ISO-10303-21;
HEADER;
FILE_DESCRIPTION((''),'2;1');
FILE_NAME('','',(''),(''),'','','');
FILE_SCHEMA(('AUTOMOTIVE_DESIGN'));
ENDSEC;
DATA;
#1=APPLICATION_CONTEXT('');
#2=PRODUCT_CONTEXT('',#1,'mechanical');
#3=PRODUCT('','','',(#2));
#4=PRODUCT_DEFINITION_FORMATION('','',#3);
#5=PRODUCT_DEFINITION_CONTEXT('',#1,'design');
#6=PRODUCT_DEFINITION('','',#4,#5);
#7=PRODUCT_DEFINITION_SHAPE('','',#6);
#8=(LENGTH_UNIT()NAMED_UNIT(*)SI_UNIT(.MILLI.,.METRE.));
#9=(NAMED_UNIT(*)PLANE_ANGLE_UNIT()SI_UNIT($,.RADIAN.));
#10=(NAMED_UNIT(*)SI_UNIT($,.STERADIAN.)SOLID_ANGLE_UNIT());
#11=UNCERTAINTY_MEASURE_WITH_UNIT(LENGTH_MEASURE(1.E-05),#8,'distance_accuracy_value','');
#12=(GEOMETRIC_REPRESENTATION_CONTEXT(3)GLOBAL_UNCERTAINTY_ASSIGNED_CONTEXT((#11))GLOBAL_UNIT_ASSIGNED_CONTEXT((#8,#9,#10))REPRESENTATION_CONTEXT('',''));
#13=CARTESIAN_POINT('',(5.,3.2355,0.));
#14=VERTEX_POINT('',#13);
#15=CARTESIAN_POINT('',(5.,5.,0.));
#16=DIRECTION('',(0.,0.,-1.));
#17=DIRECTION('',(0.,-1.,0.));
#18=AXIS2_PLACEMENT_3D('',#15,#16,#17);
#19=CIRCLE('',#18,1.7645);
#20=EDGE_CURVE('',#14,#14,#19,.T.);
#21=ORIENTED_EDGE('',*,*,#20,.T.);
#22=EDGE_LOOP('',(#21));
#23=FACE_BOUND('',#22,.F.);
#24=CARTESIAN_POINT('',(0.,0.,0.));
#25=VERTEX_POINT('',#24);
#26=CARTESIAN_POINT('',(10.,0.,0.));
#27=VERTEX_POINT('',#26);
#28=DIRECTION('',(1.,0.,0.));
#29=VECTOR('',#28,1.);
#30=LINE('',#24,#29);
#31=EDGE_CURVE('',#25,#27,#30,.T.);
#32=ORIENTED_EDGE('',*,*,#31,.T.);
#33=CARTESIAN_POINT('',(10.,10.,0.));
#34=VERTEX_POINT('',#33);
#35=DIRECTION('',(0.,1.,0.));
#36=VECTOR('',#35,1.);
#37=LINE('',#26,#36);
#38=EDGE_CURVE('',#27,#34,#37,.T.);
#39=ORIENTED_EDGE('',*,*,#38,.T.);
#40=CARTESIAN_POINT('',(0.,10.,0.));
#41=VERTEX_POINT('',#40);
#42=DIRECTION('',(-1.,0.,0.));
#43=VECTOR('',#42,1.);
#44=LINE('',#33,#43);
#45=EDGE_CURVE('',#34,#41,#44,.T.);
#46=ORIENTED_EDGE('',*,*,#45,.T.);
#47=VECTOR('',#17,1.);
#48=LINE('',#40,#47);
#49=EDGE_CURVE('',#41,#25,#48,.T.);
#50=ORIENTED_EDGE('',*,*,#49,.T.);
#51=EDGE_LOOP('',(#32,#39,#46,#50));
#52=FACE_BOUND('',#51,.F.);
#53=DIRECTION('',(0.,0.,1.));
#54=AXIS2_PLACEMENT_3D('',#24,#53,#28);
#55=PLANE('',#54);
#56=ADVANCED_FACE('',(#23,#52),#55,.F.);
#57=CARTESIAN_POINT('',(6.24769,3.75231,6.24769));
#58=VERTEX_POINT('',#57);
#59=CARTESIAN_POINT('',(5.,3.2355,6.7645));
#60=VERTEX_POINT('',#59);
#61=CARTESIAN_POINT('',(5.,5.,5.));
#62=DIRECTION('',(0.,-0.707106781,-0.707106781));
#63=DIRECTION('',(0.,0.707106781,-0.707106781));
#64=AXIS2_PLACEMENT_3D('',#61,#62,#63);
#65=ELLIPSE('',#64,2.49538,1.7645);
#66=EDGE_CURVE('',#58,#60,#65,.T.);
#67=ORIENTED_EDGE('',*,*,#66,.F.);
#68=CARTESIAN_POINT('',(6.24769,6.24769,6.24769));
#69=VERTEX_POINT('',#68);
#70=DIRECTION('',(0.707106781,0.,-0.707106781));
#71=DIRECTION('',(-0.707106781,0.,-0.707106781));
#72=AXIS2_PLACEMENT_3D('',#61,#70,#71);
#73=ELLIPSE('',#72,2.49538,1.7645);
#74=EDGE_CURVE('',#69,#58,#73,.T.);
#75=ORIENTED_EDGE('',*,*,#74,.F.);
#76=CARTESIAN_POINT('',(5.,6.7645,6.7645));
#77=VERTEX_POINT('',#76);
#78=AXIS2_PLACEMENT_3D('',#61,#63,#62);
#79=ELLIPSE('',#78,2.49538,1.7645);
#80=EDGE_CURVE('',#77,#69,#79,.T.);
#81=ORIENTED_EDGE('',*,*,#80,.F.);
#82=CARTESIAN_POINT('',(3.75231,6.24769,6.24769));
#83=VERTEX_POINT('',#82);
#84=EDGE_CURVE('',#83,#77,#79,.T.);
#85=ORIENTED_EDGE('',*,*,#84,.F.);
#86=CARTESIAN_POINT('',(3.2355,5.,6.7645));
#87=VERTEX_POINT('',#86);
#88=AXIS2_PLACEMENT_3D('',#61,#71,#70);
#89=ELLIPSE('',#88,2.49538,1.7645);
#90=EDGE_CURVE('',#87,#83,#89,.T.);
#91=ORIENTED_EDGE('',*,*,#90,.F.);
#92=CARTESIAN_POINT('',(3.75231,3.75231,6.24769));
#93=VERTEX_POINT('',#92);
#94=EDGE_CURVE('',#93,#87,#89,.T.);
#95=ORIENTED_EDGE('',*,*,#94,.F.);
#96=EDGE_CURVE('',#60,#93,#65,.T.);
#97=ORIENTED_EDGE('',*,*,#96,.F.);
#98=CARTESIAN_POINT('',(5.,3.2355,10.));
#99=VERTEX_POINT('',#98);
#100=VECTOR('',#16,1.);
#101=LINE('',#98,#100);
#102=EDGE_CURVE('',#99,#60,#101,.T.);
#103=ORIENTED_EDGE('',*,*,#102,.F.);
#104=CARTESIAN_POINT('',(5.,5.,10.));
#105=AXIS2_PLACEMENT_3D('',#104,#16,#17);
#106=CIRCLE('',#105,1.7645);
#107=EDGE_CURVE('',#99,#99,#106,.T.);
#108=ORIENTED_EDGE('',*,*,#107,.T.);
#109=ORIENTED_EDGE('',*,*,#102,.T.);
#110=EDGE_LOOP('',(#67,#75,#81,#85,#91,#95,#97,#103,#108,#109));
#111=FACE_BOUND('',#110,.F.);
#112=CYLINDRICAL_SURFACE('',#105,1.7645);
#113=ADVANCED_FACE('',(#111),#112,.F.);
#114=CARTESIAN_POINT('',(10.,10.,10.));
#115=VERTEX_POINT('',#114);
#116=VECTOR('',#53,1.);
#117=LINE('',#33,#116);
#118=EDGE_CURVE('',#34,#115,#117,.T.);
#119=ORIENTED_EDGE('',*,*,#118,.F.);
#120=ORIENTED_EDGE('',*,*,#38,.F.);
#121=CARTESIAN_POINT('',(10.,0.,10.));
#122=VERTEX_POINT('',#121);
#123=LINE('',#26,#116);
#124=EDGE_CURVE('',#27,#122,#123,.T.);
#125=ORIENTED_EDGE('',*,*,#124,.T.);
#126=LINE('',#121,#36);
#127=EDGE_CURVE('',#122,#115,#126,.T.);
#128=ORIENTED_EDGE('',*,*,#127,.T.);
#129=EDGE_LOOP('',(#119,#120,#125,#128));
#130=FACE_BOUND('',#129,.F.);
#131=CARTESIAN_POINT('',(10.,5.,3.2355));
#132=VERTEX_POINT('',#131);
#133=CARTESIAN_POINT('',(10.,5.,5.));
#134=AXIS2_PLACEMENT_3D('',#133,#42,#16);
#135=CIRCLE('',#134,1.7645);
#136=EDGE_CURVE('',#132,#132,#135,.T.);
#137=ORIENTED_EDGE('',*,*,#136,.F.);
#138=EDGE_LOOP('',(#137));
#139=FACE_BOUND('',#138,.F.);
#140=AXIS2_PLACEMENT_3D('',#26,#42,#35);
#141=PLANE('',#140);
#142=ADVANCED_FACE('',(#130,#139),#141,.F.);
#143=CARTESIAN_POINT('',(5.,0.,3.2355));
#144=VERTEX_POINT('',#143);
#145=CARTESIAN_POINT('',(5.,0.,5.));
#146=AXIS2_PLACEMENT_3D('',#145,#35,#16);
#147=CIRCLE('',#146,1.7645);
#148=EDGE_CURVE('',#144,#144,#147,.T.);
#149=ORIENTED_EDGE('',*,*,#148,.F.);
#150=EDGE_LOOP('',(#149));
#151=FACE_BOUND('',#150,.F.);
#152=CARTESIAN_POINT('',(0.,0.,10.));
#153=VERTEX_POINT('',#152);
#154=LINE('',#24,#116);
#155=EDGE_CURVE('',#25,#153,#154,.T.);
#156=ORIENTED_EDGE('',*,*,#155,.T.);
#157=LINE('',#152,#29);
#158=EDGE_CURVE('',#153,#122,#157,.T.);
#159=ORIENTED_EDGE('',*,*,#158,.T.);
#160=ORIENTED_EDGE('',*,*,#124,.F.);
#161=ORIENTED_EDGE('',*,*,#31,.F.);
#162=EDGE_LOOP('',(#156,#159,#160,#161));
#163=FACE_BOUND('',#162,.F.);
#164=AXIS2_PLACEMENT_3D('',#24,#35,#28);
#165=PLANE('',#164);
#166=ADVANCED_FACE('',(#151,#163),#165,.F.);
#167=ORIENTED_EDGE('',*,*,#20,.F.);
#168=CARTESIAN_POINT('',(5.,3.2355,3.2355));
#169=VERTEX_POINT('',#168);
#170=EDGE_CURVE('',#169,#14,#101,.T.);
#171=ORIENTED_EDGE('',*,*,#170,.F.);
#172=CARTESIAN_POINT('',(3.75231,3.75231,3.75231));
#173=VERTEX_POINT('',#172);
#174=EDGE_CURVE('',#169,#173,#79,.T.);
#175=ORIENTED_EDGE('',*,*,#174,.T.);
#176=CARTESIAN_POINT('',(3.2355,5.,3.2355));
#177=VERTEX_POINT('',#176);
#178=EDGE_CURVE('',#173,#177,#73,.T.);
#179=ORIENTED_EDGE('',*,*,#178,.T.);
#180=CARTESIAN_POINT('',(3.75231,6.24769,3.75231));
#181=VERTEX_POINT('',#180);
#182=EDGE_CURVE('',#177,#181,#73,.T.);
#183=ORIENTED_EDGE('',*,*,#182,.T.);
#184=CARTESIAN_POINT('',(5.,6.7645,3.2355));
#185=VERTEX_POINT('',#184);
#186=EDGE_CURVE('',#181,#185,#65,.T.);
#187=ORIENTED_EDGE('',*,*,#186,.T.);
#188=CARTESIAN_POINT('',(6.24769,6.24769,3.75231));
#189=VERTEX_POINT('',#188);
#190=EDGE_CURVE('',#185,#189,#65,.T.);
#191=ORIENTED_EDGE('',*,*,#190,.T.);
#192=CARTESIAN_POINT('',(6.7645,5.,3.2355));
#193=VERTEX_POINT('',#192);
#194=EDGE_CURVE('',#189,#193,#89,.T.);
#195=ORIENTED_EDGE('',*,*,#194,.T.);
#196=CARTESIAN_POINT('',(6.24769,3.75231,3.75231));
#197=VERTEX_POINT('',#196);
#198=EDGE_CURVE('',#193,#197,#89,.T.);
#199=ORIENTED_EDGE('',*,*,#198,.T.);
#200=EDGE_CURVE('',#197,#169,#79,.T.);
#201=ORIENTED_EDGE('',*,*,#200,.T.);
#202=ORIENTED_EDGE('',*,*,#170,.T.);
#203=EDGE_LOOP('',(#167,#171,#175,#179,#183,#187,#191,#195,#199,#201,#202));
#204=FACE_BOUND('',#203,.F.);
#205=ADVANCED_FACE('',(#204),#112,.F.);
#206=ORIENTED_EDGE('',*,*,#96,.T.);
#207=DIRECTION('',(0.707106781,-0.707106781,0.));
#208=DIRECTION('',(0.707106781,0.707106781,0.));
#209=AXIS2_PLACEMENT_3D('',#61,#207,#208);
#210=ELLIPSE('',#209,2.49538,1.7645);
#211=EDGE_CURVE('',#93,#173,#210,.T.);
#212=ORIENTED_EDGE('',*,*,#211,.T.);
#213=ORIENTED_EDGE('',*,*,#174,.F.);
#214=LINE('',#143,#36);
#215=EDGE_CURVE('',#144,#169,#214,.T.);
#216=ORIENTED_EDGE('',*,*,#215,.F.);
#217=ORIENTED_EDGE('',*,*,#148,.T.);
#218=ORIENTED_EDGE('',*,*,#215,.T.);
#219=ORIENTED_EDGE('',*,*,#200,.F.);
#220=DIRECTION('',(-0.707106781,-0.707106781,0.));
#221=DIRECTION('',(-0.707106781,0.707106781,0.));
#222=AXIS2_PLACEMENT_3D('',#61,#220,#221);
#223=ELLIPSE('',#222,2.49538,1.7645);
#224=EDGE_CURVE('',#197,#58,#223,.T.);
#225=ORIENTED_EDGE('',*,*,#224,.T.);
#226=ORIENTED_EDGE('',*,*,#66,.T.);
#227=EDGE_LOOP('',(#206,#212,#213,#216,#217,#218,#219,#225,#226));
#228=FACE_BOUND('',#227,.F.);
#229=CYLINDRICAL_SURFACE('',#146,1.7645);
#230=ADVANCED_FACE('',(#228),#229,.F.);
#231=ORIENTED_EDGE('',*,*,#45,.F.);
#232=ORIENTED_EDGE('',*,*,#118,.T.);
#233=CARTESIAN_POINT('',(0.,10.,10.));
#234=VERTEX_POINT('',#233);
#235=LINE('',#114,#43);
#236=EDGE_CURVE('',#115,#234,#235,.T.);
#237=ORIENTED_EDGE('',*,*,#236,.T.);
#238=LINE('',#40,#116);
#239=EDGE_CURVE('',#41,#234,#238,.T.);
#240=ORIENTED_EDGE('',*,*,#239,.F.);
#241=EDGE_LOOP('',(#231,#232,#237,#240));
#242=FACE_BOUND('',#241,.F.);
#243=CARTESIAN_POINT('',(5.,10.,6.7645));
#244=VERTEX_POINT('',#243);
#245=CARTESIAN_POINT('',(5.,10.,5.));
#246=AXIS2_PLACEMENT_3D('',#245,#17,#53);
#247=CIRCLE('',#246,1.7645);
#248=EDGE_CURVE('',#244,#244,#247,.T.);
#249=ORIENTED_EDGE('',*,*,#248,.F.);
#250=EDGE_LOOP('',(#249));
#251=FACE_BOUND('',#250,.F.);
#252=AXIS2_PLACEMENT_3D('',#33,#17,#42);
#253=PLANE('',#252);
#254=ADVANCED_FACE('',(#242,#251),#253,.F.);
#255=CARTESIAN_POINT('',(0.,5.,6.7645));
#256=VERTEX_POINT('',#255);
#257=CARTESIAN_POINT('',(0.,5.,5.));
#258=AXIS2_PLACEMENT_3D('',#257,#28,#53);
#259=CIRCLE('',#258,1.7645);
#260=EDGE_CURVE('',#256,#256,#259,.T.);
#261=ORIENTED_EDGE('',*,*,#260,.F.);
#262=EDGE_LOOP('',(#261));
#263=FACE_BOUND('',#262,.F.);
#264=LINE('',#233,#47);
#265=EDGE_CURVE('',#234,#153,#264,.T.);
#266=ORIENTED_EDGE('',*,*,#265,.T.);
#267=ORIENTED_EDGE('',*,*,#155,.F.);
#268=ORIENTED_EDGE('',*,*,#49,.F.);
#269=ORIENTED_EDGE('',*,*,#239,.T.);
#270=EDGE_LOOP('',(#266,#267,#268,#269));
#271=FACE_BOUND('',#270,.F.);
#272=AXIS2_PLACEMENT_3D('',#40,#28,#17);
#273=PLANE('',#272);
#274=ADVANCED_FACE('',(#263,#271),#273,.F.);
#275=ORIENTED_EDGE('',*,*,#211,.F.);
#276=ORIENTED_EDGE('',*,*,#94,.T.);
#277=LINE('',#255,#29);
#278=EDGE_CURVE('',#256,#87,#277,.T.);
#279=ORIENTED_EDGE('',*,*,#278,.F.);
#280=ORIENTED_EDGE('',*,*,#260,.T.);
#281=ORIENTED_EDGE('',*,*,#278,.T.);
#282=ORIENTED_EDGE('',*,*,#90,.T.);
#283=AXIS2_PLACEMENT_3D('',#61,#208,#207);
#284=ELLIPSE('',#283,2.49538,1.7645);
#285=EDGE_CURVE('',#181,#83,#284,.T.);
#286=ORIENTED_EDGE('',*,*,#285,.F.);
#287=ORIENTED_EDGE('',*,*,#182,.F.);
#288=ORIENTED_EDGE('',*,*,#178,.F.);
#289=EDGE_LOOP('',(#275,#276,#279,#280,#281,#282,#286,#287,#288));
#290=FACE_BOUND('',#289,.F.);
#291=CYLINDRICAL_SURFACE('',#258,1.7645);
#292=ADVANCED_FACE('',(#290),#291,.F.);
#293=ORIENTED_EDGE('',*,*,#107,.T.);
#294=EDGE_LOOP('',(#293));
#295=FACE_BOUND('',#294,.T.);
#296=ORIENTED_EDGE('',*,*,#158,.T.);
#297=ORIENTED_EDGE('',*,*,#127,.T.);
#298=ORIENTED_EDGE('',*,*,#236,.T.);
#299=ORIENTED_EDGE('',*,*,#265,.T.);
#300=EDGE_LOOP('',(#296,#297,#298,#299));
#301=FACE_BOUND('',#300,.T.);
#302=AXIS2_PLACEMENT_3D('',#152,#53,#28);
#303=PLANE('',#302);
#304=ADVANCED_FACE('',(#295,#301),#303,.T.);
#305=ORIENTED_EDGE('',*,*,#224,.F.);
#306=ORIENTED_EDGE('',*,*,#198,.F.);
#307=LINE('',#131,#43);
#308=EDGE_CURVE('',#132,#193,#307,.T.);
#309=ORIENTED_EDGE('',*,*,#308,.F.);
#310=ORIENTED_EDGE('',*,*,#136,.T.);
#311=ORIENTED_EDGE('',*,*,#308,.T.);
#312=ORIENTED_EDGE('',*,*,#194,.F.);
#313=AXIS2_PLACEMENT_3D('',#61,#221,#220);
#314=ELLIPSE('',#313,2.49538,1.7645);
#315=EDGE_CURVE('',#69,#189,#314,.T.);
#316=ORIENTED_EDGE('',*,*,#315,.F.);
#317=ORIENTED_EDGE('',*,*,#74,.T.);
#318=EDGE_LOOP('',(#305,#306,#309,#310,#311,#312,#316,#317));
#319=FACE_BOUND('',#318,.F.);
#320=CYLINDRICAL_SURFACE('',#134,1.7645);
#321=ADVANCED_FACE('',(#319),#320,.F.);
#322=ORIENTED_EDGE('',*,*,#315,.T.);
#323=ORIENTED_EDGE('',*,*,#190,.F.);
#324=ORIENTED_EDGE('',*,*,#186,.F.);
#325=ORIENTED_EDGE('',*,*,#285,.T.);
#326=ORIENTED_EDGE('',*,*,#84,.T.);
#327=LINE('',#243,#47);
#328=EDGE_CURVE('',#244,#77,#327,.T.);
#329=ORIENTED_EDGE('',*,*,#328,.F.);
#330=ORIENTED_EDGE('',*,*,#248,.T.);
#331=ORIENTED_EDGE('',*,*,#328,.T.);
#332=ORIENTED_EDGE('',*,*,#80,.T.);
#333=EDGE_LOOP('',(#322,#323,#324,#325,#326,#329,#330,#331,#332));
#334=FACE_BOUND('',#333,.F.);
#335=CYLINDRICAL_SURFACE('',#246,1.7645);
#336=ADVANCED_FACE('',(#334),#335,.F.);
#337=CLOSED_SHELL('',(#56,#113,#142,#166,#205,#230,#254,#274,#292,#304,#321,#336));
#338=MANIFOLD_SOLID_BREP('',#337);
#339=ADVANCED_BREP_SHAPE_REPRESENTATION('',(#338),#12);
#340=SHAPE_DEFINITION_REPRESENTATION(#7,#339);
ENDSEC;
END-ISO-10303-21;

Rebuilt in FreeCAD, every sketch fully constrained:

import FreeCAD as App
import Part
import Sketcher
Q = App.Units.Quantity

doc = App.newDocument("Part")
body = doc.addObject("PartDesign::Body", "Body")

sketch1 = body.newObject("Sketcher::SketchObject", "Sketch")
sketch1.AttachmentSupport = (doc.getObject("XY_Plane"), [""])
sketch1.MapMode = "FlatFace"
sketch1.addGeometry(Part.LineSegment(App.Vector(0, 10, 0), App.Vector(0, 0, 0)), False)
sketch1.addGeometry(Part.LineSegment(App.Vector(0, 0, 0), App.Vector(10, 0, 0)), False)
sketch1.addGeometry(Part.LineSegment(App.Vector(10, 0, 0), App.Vector(10, 10, 0)), False)
sketch1.addGeometry(Part.LineSegment(App.Vector(10, 10, 0), App.Vector(0, 10, 0)), False)
sketch1.addConstraint(Sketcher.Constraint("Coincident", 0, 2, 1, 1))
sketch1.addConstraint(Sketcher.Constraint("Coincident", 1, 2, 2, 1))
sketch1.addConstraint(Sketcher.Constraint("Coincident", 2, 2, 3, 1))
sketch1.addConstraint(Sketcher.Constraint("Coincident", 3, 2, 0, 1))
sketch1.addConstraint(Sketcher.Constraint("Vertical", 0))
sketch1.addConstraint(Sketcher.Constraint("Horizontal", 1))
sketch1.addConstraint(Sketcher.Constraint("Vertical", 2))
sketch1.addConstraint(Sketcher.Constraint("Horizontal", 3))
sketch1.addConstraint(Sketcher.Constraint("Coincident", 0, 2, -1, 1))
sketch1.addConstraint(Sketcher.Constraint("Equal", 3, 0))
sketch1.addConstraint(Sketcher.Constraint("DistanceX", 1, 1, 1, 2, Q("10 mm")))
pad1 = body.newObject("PartDesign::Pad", "Pad")
pad1.Profile = sketch1
pad1.Length = 10

sketch2 = body.newObject("Sketcher::SketchObject", "Sketch001")
sketch2.AttachmentSupport = (doc.getObject("XY_Plane"), [""])
sketch2.MapMode = "FlatFace"
sketch2.AttachmentOffset = App.Placement(App.Vector(0, 0, 10), App.Rotation())
sketch2.addGeometry(Part.Circle(App.Vector(5, 5, 0), App.Vector(0, 0, 1), 1.8), False)
sketch2.addConstraint(Sketcher.Constraint("Diameter", 0, Q("3.529 mm")))
sketch2.addConstraint(Sketcher.Constraint("DistanceX", -1, 1, 0, 3, Q("5 mm")))
sketch2.addConstraint(Sketcher.Constraint("DistanceY", -1, 1, 0, 3, Q("5 mm")))
doc.recompute()
hole = body.newObject("PartDesign::Hole", "Hole")
hole.Profile = sketch2
hole.ThreadType = "None"
hole.Diameter = 3.529
hole.DepthType = "Dimension"
hole.Depth = 10
hole.DrillPoint = "Flat"

sketch3 = body.newObject("Sketcher::SketchObject", "Sketch002")
sketch3.AttachmentSupport = (doc.getObject("YZ_Plane"), [""])
sketch3.MapMode = "FlatFace"
sketch3.addGeometry(Part.Circle(App.Vector(5, 5, 0), App.Vector(0, 0, 1), 1.8), False)
sketch3.addConstraint(Sketcher.Constraint("Diameter", 0, Q("3.529 mm")))
sketch3.addConstraint(Sketcher.Constraint("DistanceX", -1, 1, 0, 3, Q("5 mm")))
sketch3.addConstraint(Sketcher.Constraint("DistanceY", -1, 1, 0, 3, Q("5 mm")))
doc.recompute()
hole2 = body.newObject("PartDesign::Hole", "Hole001")
hole2.Profile = sketch3
hole2.ThreadType = "None"
hole2.Diameter = 3.529
hole2.DepthType = "Dimension"
hole2.Depth = 5
hole2.DrillPoint = "Flat"
hole2.Reversed = True

sketch4 = body.newObject("Sketcher::SketchObject", "Sketch003")
sketch4.AttachmentSupport = (doc.getObject("YZ_Plane"), [""])
sketch4.MapMode = "FlatFace"
sketch4.AttachmentOffset = App.Placement(App.Vector(0, 0, 10), App.Rotation())
sketch4.addGeometry(Part.Circle(App.Vector(5, 5, 0), App.Vector(0, 0, 1), 1.8), False)
sketch4.addConstraint(Sketcher.Constraint("Diameter", 0, Q("3.529 mm")))
sketch4.addConstraint(Sketcher.Constraint("DistanceX", -1, 1, 0, 3, Q("5 mm")))
sketch4.addConstraint(Sketcher.Constraint("DistanceY", -1, 1, 0, 3, Q("5 mm")))
doc.recompute()
hole3 = body.newObject("PartDesign::Hole", "Hole002")
hole3.Profile = sketch4
hole3.ThreadType = "None"
hole3.Diameter = 3.529
hole3.DepthType = "Dimension"
hole3.Depth = 5
hole3.DrillPoint = "Flat"

sketch5 = body.newObject("Sketcher::SketchObject", "Sketch004")
sketch5.AttachmentSupport = (doc.getObject("XZ_Plane"), [""])
sketch5.MapMode = "FlatFace"
sketch5.AttachmentOffset = App.Placement(App.Vector(0, 0, -10), App.Rotation())
sketch5.addGeometry(Part.Circle(App.Vector(5, 5, 0), App.Vector(0, 0, 1), 1.8), False)
sketch5.addConstraint(Sketcher.Constraint("Diameter", 0, Q("3.529 mm")))
sketch5.addConstraint(Sketcher.Constraint("DistanceX", -1, 1, 0, 3, Q("5 mm")))
sketch5.addConstraint(Sketcher.Constraint("DistanceY", -1, 1, 0, 3, Q("5 mm")))
doc.recompute()
hole4 = body.newObject("PartDesign::Hole", "Hole003")
hole4.Profile = sketch5
hole4.ThreadType = "None"
hole4.Diameter = 3.529
hole4.DepthType = "Dimension"
hole4.Depth = 5
hole4.DrillPoint = "Flat"
hole4.Reversed = True

sketch6 = body.newObject("Sketcher::SketchObject", "Sketch005")
sketch6.AttachmentSupport = (doc.getObject("XZ_Plane"), [""])
sketch6.MapMode = "FlatFace"
sketch6.addGeometry(Part.Circle(App.Vector(5, 5, 0), App.Vector(0, 0, 1), 1.8), False)
sketch6.addConstraint(Sketcher.Constraint("Diameter", 0, Q("3.529 mm")))
sketch6.addConstraint(Sketcher.Constraint("DistanceX", -1, 1, 0, 3, Q("5 mm")))
sketch6.addConstraint(Sketcher.Constraint("DistanceY", -1, 1, 0, 3, Q("5 mm")))
doc.recompute()
hole5 = body.newObject("PartDesign::Hole", "Hole004")
hole5.Profile = sketch6
hole5.ThreadType = "None"
hole5.Diameter = 3.529
hole5.DepthType = "Dimension"
hole5.Depth = 5
hole5.DrillPoint = "Flat"

doc.recompute()
